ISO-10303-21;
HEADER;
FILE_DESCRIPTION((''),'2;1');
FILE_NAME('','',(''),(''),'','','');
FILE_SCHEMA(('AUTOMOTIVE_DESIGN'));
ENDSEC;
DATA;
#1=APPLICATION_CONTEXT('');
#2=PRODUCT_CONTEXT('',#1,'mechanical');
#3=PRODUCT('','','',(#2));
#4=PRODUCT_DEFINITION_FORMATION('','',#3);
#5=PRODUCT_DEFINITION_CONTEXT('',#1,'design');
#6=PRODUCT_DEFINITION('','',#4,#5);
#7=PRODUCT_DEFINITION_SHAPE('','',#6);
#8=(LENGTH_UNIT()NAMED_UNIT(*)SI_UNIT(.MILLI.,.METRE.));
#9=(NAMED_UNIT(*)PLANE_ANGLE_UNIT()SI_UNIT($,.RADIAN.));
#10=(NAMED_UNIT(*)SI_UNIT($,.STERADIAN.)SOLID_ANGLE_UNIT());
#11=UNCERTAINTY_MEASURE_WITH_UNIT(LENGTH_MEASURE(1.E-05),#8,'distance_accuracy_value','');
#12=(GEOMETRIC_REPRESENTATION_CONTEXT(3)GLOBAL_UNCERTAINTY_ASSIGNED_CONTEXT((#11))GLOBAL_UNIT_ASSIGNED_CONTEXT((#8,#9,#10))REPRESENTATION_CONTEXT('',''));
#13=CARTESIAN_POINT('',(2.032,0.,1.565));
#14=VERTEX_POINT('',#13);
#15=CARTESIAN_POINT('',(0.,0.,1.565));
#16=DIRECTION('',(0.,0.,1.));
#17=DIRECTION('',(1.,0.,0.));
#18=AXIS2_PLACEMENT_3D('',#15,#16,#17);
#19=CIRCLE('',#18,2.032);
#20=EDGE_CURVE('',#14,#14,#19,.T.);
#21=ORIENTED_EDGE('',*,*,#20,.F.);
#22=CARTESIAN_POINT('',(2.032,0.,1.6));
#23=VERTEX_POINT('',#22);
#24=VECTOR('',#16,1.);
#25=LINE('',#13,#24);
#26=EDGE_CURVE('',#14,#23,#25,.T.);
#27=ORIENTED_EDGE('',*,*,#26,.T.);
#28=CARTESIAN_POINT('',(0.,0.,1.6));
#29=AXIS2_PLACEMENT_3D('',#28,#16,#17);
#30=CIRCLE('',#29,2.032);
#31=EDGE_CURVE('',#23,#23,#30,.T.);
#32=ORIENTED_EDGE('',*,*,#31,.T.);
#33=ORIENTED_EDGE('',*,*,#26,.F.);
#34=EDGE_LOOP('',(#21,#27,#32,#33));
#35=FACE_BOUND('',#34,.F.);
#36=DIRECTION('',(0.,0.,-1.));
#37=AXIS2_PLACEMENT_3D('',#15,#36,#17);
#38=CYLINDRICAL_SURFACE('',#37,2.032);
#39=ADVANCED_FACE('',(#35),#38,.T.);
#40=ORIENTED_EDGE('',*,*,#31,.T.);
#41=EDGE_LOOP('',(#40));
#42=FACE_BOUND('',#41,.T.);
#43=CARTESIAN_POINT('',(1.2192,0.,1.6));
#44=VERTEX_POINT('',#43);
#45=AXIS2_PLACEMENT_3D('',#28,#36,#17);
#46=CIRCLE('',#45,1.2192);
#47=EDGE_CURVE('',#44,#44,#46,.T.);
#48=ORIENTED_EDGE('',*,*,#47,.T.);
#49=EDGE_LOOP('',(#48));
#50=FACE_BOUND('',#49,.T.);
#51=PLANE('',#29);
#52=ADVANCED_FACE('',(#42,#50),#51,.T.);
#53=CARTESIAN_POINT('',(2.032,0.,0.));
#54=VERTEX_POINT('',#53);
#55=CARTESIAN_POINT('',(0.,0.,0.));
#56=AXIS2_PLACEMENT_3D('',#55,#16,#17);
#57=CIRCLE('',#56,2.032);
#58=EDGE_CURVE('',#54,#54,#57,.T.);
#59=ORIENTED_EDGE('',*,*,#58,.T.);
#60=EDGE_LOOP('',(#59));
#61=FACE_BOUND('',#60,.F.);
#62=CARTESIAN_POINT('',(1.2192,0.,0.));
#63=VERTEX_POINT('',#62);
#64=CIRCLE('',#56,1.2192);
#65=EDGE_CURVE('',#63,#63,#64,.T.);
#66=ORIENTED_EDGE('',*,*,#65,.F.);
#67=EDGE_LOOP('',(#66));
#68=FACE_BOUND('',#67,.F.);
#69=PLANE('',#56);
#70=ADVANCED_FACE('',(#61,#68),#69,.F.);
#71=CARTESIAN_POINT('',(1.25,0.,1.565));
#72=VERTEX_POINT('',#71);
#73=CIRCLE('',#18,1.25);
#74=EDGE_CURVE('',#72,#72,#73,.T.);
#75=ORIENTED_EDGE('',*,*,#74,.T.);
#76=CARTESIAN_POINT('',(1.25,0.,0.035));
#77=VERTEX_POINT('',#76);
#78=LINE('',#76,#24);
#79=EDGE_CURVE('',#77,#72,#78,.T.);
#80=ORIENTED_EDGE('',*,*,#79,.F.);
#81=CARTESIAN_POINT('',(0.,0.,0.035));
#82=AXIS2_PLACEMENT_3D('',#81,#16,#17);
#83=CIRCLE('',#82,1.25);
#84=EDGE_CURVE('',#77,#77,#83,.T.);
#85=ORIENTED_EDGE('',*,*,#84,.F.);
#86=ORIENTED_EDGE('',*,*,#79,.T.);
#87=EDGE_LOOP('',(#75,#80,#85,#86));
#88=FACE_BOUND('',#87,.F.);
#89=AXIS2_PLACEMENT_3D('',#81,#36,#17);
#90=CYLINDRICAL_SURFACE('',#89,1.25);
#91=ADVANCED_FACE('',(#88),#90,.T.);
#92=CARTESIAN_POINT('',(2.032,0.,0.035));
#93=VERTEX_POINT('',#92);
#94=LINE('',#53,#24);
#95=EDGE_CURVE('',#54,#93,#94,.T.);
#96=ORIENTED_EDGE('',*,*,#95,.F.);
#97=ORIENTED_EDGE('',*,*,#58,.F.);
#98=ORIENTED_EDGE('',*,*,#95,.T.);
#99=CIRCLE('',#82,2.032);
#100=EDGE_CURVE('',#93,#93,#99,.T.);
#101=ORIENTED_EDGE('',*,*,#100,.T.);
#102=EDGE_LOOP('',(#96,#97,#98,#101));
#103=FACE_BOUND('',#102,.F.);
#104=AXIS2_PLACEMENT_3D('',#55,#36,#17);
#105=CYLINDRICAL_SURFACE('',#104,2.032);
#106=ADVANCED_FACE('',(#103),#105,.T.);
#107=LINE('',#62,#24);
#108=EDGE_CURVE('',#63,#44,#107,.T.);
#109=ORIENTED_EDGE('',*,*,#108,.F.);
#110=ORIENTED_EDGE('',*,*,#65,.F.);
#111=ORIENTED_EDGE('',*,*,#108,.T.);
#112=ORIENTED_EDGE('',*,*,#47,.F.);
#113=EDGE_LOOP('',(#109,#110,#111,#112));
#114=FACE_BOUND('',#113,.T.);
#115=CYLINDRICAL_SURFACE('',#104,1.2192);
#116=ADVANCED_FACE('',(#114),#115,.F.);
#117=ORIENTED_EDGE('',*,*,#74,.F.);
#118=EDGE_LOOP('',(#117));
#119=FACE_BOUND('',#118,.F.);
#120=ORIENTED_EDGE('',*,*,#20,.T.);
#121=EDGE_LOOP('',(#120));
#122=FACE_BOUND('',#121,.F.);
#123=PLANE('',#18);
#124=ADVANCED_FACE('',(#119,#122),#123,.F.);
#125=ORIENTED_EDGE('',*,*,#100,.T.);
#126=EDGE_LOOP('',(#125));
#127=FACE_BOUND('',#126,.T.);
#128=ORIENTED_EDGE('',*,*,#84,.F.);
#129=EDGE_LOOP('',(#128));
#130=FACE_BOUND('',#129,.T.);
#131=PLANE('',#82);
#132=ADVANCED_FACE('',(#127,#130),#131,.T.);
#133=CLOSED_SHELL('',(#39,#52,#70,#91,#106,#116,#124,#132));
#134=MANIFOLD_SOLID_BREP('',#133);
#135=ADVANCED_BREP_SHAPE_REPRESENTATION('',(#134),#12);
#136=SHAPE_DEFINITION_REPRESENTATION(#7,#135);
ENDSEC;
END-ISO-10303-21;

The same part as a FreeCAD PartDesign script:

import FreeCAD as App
import Part
import Sketcher
from FreeCAD import Vector
Q = App.Units.Quantity

doc = App.newDocument("Part")
body = doc.addObject("PartDesign::Body", "Body")

# Sketch on XY plane
sketch1 = body.newObject("Sketcher::SketchObject", "Sketch")
sketch1.AttachmentSupport = (doc.getObject("XY_Plane"), [""])
sketch1.MapMode = "FlatFace"
sketch1.addGeometry(Part.Circle(Vector(0, 0, 0), Vector(0, 0, 1), 2), False)
sketch1.addConstraint(Sketcher.Constraint("Coincident", 0, 3, -1, 1))
sketch1.addConstraint(Sketcher.Constraint("Diameter", 0, Q("0.16 in")))
pad1 = body.newObject("PartDesign::Pad", "Pad")
pad1.Profile = sketch1
pad1.Length = 0.035

# Sketch on XY plane
sketch2 = body.newObject("Sketcher::SketchObject", "Sketch001")
sketch2.AttachmentSupport = (doc.getObject("XY_Plane"), [""])
sketch2.MapMode = "FlatFace"
sketch2.AttachmentOffset = App.Placement(Vector(0, 0, 0.035), App.Rotation())
sketch2.addGeometry(Part.Circle(Vector(0, 0, 0), Vector(0, 0, 1), 1.2), False)
sketch2.addConstraint(Sketcher.Constraint("Coincident", 0, 3, -1, 1))
sketch2.addConstraint(Sketcher.Constraint("Diameter", 0, Q("2.5 mm")))
pad2 = body.newObject("PartDesign::Pad", "Pad001")
pad2.Profile = sketch2
pad2.Length = 1.53

# Sketch on XY plane
sketch3 = body.newObject("Sketcher::SketchObject", "Sketch002")
sketch3.AttachmentSupport = (doc.getObject("XY_Plane"), [""])
sketch3.MapMode = "FlatFace"
sketch3.AttachmentOffset = App.Placement(Vector(0, 0, 1.565), App.Rotation())
sketch3.addGeometry(Part.Circle(Vector(0, 0, 0), Vector(0, 0, 1), 2), False)
sketch3.addConstraint(Sketcher.Constraint("Coincident", 0, 3, -1, 1))
sketch3.addConstraint(Sketcher.Constraint("Diameter", 0, Q("0.16 in")))
pad3 = body.newObject("PartDesign::Pad", "Pad002")
pad3.Profile = sketch3
pad3.Length = 0.035

# Sketch on XY plane
sketch4 = body.newObject("Sketcher::SketchObject", "Sketch003")
sketch4.AttachmentSupport = (doc.getObject("XY_Plane"), [""])
sketch4.MapMode = "FlatFace"
sketch4.addGeometry(Part.Circle(Vector(0, 0, 0), Vector(0, 0, 1), 1.2), False)
sketch4.addConstraint(Sketcher.Constraint("Coincident", 0, 3, -1, 1))
sketch4.addConstraint(Sketcher.Constraint("Diameter", 0, Q("0.096 in")))
pocket1 = body.newObject("PartDesign::Pocket", "Pocket")
pocket1.Profile = sketch4
pocket1.Type = "ThroughAll"
pocket1.Reversed = True

doc.recompute()
